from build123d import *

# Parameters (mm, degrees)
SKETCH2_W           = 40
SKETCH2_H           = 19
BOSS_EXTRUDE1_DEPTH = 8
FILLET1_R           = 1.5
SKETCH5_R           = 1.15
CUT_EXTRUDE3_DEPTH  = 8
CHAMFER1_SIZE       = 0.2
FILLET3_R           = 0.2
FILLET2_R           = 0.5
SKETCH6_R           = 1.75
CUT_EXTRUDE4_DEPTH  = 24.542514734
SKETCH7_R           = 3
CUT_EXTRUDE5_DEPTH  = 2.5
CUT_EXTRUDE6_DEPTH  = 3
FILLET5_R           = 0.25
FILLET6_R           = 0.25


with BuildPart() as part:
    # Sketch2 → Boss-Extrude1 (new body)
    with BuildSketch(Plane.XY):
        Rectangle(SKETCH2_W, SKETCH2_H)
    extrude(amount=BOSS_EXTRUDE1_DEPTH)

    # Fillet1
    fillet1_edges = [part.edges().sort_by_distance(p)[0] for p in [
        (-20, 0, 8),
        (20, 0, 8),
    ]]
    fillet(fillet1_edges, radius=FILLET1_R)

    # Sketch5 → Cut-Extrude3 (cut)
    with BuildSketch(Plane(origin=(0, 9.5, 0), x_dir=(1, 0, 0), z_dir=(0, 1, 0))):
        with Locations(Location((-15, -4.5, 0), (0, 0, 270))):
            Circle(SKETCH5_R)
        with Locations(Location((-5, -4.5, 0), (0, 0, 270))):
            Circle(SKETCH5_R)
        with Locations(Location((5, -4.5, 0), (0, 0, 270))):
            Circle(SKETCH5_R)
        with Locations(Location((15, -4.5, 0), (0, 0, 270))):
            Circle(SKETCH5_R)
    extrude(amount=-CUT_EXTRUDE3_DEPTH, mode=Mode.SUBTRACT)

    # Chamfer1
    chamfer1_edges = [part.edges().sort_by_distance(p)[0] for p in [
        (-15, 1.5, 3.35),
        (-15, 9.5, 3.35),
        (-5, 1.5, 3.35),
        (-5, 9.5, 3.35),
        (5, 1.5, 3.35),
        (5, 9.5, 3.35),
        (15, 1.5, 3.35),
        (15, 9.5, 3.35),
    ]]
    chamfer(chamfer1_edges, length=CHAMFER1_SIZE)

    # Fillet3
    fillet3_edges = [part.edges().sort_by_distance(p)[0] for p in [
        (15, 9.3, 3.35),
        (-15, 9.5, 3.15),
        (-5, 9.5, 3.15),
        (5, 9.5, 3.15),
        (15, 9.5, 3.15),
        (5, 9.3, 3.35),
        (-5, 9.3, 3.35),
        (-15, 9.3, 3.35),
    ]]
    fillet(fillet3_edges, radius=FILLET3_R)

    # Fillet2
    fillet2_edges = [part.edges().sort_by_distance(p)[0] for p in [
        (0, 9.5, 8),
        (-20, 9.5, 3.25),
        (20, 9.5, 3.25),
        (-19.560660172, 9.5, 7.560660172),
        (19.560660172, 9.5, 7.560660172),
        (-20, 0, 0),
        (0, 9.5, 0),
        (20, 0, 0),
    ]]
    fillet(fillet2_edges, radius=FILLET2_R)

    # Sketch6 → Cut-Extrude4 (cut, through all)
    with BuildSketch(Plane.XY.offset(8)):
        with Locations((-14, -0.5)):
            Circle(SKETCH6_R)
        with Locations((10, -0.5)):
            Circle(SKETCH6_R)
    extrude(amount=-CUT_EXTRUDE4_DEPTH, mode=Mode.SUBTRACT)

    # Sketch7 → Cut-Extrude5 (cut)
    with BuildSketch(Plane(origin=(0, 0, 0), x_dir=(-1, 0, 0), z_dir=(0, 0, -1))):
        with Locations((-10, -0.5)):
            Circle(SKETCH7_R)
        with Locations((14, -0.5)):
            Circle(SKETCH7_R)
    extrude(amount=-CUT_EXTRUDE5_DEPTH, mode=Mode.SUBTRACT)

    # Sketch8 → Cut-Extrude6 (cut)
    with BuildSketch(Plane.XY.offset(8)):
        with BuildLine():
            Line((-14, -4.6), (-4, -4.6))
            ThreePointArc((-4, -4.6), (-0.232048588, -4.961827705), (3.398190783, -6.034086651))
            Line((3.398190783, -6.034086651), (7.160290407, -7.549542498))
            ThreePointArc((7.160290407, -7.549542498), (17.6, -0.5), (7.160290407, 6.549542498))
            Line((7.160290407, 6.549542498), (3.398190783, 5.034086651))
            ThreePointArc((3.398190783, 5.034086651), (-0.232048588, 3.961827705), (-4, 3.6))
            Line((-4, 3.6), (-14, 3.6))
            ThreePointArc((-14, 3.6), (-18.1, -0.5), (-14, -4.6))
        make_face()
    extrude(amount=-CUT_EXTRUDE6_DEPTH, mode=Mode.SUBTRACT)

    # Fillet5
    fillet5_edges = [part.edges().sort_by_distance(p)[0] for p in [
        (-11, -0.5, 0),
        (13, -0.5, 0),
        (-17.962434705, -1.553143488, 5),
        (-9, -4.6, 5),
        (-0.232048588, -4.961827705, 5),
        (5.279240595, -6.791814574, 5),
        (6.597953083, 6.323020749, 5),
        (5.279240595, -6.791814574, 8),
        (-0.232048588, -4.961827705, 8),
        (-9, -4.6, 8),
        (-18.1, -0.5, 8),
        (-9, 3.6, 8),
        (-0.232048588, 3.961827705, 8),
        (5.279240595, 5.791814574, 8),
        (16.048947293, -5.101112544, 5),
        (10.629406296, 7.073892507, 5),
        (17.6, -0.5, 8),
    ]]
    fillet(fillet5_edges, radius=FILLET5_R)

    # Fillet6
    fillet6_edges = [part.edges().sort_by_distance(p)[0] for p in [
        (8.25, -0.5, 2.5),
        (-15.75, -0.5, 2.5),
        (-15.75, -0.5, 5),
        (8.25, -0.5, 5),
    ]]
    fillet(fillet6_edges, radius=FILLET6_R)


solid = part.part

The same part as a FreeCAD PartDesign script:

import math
import FreeCAD as App
import Part
import Sketcher

V = App.Vector


def edges_at(feature, points):
    """Names of the edges that pass closest to the given points."""
    edges = feature.Shape.Edges
    near = lambda p: min(range(len(edges)), key=lambda i: edges[i].distToShape(Part.Vertex(*p))[0])
    return sorted({f"Edge{near(p) + 1}" for p in points})

doc = App.newDocument("Part")
params = doc.addObject("Spreadsheet::Sheet", "Params")
for row, (alias, value) in enumerate([
    ("sketch1_width", "40 mm"),
    ("sketch1_height", "19 mm"),
    ("pad1_length", "8 mm"),
    ("fillet_radius", "1.5 mm"),
    ("sketch2_diameter", "2.3 mm"),
    ("pocket1_length", "8 mm"),
    ("chamfer_size", "0.2 mm"),
    ("fillet2_radius", "0.2 mm"),
    ("fillet3_radius", "0.5 mm"),
    ("sketch3_diameter", "3.5 mm"),
    ("sketch4_diameter", "6 mm"),
    ("pocket3_length", "2.5 mm"),
    ("sketch5_radius", "19.8 mm"),
    ("sketch5_radius2", "7.6 mm"),
    ("sketch5_radius3", "4.1 mm"),
    ("sketch5_width", "10 mm"),
    ("pocket4_length", "3 mm"),
    ("fillet4_radius", "0.25 mm"),
    ("fillet5_radius", "0.25 mm"),
], start=1):
    params.set(f"A{row}", alias)
    params.set(f"B{row}", "=" + value)
    params.setAlias(f"B{row}", alias)

body = doc.addObject("PartDesign::Body", "Body")

# Sketch on XY plane
sketch1 = body.newObject("Sketcher::SketchObject", "Sketch")
sketch1.AttachmentSupport = (doc.getObject("XY_Plane"), [""])
sketch1.MapMode = "FlatFace"
sketch1.addGeometry(Part.LineSegment(V(-20, 10, 0), V(-20, -10, 0)), False)
sketch1.addGeometry(Part.LineSegment(V(-20, -10, 0), V(20, -10, 0)), False)
sketch1.addGeometry(Part.LineSegment(V(20, -10, 0), V(20, 10, 0)), False)
sketch1.addGeometry(Part.LineSegment(V(20, 10, 0), V(-20, 10, 0)), False)
sketch1.addConstraint(Sketcher.Constraint("Coincident", 0, 2, 1, 1))
sketch1.addConstraint(Sketcher.Constraint("Coincident", 1, 2, 2, 1))
sketch1.addConstraint(Sketcher.Constraint("Coincident", 2, 2, 3, 1))
sketch1.addConstraint(Sketcher.Constraint("Coincident", 3, 2, 0, 1))
sketch1.addConstraint(Sketcher.Constraint("Vertical", 0))
sketch1.addConstraint(Sketcher.Constraint("Horizontal", 1))
sketch1.addConstraint(Sketcher.Constraint("Vertical", 2))
sketch1.addConstraint(Sketcher.Constraint("Horizontal", 3))
sketch1.addConstraint(Sketcher.Constraint("Symmetric", 0, 2, 2, 2, -1, 1))
sketch1.addConstraint(Sketcher.Constraint("DistanceX", 1, 1, 1, 2, 40.0))
sketch1.addConstraint(Sketcher.Constraint("DistanceY", 0, 2, 0, 1, 19.0))
sketch1.setExpression("Constraints[9]", "Params.sketch1_width")
sketch1.setExpression("Constraints[10]", "Params.sketch1_height")
pad1 = body.newObject("PartDesign::Pad", "Pad")
pad1.Profile = sketch1
pad1.setExpression("Length", "Params.pad1_length")
doc.recompute()

fillet = body.newObject("PartDesign::Fillet", "Fillet")
fillet.Base = (pad1, edges_at(pad1, [(-20, 0, 8), (20, 0, 8)]))
fillet.setExpression("Radius", "Params.fillet_radius")

# Sketch on XZ plane
sketch2 = body.newObject("Sketcher::SketchObject", "Sketch001")
sketch2.AttachmentSupport = (doc.getObject("XZ_Plane"), [""])
sketch2.MapMode = "FlatFace"
sketch2.AttachmentOffset = App.Placement(V(0, 0, -9.5), App.Rotation())
sketch2.addGeometry(Part.Circle(V(-15, 4.5, 0), V(0, 0, 1), 1.1), False)
sketch2.addGeometry(Part.Circle(V(-5, 4.5, 0), V(0, 0, 1), 1.1), False)
sketch2.addGeometry(Part.Circle(V(5, 4.5, 0), V(0, 0, 1), 1.1), False)
sketch2.addGeometry(Part.Circle(V(15, 4.5, 0), V(0, 0, 1), 1.1), False)
sketch2.addConstraint(Sketcher.Constraint("Equal", 0, 1))
sketch2.addConstraint(Sketcher.Constraint("Equal", 1, 2))
sketch2.addConstraint(Sketcher.Constraint("Equal", 2, 3))
sketch2.addConstraint(Sketcher.Constraint("Symmetric", 1, 3, 2, 3, -2))
sketch2.addConstraint(Sketcher.Constraint("Symmetric", 0, 3, 3, 3, -2))
sketch2.addConstraint(Sketcher.Constraint("Horizontal", 0, 3, 1, 3))
sketch2.addConstraint(Sketcher.Constraint("Diameter", 0, 2.3))
sketch2.addConstraint(Sketcher.Constraint("DistanceX", 0, 3, -1, 1, 15.0))
sketch2.addConstraint(Sketcher.Constraint("DistanceX", 1, 3, -1, 1, 5.0))
sketch2.addConstraint(Sketcher.Constraint("DistanceY", -1, 1, 0, 3, 4.5))
sketch2.setExpression("Constraints[6]", "Params.sketch2_diameter")
pocket1 = body.newObject("PartDesign::Pocket", "Pocket")
pocket1.Profile = sketch2
pocket1.setExpression("Length", "Params.pocket1_length")
pocket1.Reversed = True
doc.recompute()

chamfer = body.newObject("PartDesign::Chamfer", "Chamfer")
chamfer.Base = (pocket1, edges_at(pocket1, [
    (-15, 1.5, 3.35),
    (-15, 9.5, 3.35),
    (-5, 1.5, 3.35),
    (-5, 9.5, 3.35),
    (5, 1.5, 3.35),
    (5, 9.5, 3.35),
    (15, 1.5, 3.35),
    (15, 9.5, 3.35),
]))
chamfer.setExpression("Size", "Params.chamfer_size")
doc.recompute()

fillet2 = body.newObject("PartDesign::Fillet", "Fillet001")
fillet2.Base = (chamfer, edges_at(chamfer, [
    (15, 9.3, 3.35),
    (-15, 9.5, 3.15),
    (-5, 9.5, 3.15),
    (5, 9.5, 3.15),
    (15, 9.5, 3.15),
    (5, 9.3, 3.35),
    (-5, 9.3, 3.35),
    (-15, 9.3, 3.35),
]))
fillet2.setExpression("Radius", "Params.fillet2_radius")
doc.recompute()

fillet3 = body.newObject("PartDesign::Fillet", "Fillet002")
fillet3.Base = (fillet2, edges_at(fillet2, [
    (0, 9.5, 8),
    (-20, 9.5, 3.25),
    (20, 9.5, 3.25),
    (-19.561, 9.5, 7.561),
    (19.561, 9.5, 7.561),
    (-20, 0, 0),
    (0, 9.5, 0),
    (20, 0, 0),
]))
fillet3.setExpression("Radius", "Params.fillet3_radius")

# Sketch on XY plane
sketch3 = body.newObject("Sketcher::SketchObject", "Sketch002")
sketch3.AttachmentSupport = (doc.getObject("XY_Plane"), [""])
sketch3.MapMode = "FlatFace"
sketch3.AttachmentOffset = App.Placement(V(0, 0, 8), App.Rotation())
sketch3.addGeometry(Part.Circle(V(-14, -0.5, 0), V(0, 0, 1), 1.8), False)
sketch3.addGeometry(Part.Circle(V(10, -0.5, 0), V(0, 0, 1), 1.8), False)
sketch3.addConstraint(Sketcher.Constraint("Equal", 0, 1))
sketch3.addConstraint(Sketcher.Constraint("Horizontal", 0, 3, 1, 3))
sketch3.addConstraint(Sketcher.Constraint("Diameter", 0, 3.5))
sketch3.addConstraint(Sketcher.Constraint("DistanceX", 0, 3, -1, 1, 14.0))
sketch3.addConstraint(Sketcher.Constraint("DistanceX", -1, 1, 1, 3, 10.0))
sketch3.addConstraint(Sketcher.Constraint("DistanceY", 0, 3, -1, 1, 0.5))
sketch3.setExpression("Constraints[2]", "Params.sketch3_diameter")
pocket2 = body.newObject("PartDesign::Pocket", "Pocket001")
pocket2.Profile = sketch3
pocket2.Type = "ThroughAll"

# Sketch on XY plane
sketch4 = body.newObject("Sketcher::SketchObject", "Sketch003")
sketch4.AttachmentSupport = (doc.getObject("XY_Plane"), [""])
sketch4.MapMode = "FlatFace"
sketch4.addGeometry(Part.Circle(V(10, -0.5, 0), V(0, 0, 1), 3), False)
sketch4.addGeometry(Part.Circle(V(-14, -0.5, 0), V(0, 0, 1), 3), False)
sketch4.addConstraint(Sketcher.Constraint("Equal", 0, 1))
sketch4.addConstraint(Sketcher.Constraint("Horizontal", 0, 3, 1, 3))
sketch4.addConstraint(Sketcher.Constraint("Diameter", 0, 6.0))
sketch4.addConstraint(Sketcher.Constraint("DistanceX", -1, 1, 0, 3, 10.0))
sketch4.addConstraint(Sketcher.Constraint("DistanceX", 1, 3, -1, 1, 14.0))
sketch4.addConstraint(Sketcher.Constraint("DistanceY", 0, 3, -1, 1, 0.5))
sketch4.setExpression("Constraints[2]", "Params.sketch4_diameter")
pocket3 = body.newObject("PartDesign::Pocket", "Pocket002")
pocket3.Profile = sketch4
pocket3.setExpression("Length", "Params.pocket3_length")
pocket3.Reversed = True

# Sketch on XY plane
sketch5 = body.newObject("Sketcher::SketchObject", "Sketch004")
sketch5.AttachmentSupport = (doc.getObject("XY_Plane"), [""])
sketch5.MapMode = "FlatFace"
sketch5.AttachmentOffset = App.Placement(V(0, 0, 8), App.Rotation())
sketch5.addGeometry(Part.LineSegment(V(-14, -4.6, 0), V(-4, -4.6, 0)), False)
sketch5.addGeometry(Part.ArcOfCircle(Part.Circle(V(-4, -24.4, 0), V(0, 0, 1), 19.8), math.radians(68), math.radians(90)), False)
sketch5.addGeometry(Part.LineSegment(V(3.4, -6, 0), V(7.2, -7.5, 0)), False)
sketch5.addGeometry(Part.ArcOfCircle(Part.Circle(V(10, -0.5, 0), V(0, 0, 1), 7.6), math.radians(-112), math.radians(112)), False)
sketch5.addGeometry(Part.LineSegment(V(7.2, 6.5, 0), V(3.4, 5, 0)), False)
sketch5.addGeometry(Part.ArcOfCircle(Part.Circle(V(-4, 23.4, 0), V(0, 0, 1), 19.8), math.radians(-90), math.radians(-68)), False)
sketch5.addGeometry(Part.LineSegment(V(-4, 3.6, 0), V(-14, 3.6, 0)), False)
sketch5.addGeometry(Part.ArcOfCircle(Part.Circle(V(-14, -0.5, 0), V(0, 0, 1), 4.1), math.radians(90), math.radians(270)), False)
sketch5.addConstraint(Sketcher.Constraint("Tangent", 0, 2, 1, 2))
sketch5.addConstraint(Sketcher.Constraint("Tangent", 1, 1, 2, 1))
sketch5.addConstraint(Sketcher.Constraint("Tangent", 2, 2, 3, 1))
sketch5.addConstraint(Sketcher.Constraint("Tangent", 3, 2, 4, 1))
sketch5.addConstraint(Sketcher.Constraint("Tangent", 4, 2, 5, 2))
sketch5.addConstraint(Sketcher.Constraint("Tangent", 5, 1, 6, 1))
sketch5.addConstraint(Sketcher.Constraint("Tangent", 6, 2, 7, 1))
sketch5.addConstraint(Sketcher.Constraint("Tangent", 7, 2, 0, 1))
sketch5.addConstraint(Sketcher.Constraint("Horizontal", 0))
sketch5.addConstraint(Sketcher.Constraint("Horizontal", 6))
sketch5.addConstraint(Sketcher.Constraint("Equal", 1, 5))
sketch5.addConstraint(Sketcher.Constraint("Horizontal", 3, 3, 7, 3))
sketch5.addConstraint(Sketcher.Constraint("Vertical", 1, 3, 5, 3))
sketch5.addConstraint(Sketcher.Constraint("Radius", 1, 19.8))
sketch5.addConstraint(Sketcher.Constraint("Radius", 3, 7.6))
sketch5.addConstraint(Sketcher.Constraint("Radius", 7, 4.1))
sketch5.addConstraint(Sketcher.Constraint("DistanceX", 0, 1, 0, 2, 10.0))
sketch5.addConstraint(Sketcher.Constraint("DistanceX", 1, 3, -1, 1, 4.0))
sketch5.addConstraint(Sketcher.Constraint("DistanceX", -1, 1, 3, 3, 10.0))
sketch5.addConstraint(Sketcher.Constraint("DistanceY", 1, 3, -1, 1, 24.4))
sketch5.setExpression("Constraints[13]", "Params.sketch5_radius")
sketch5.setExpression("Constraints[14]", "Params.sketch5_radius2")
sketch5.setExpression("Constraints[15]", "Params.sketch5_radius3")
sketch5.setExpression("Constraints[16]", "Params.sketch5_width")
pocket4 = body.newObject("PartDesign::Pocket", "Pocket003")
pocket4.Profile = sketch5
pocket4.setExpression("Length", "Params.pocket4_length")
doc.recompute()

fillet4 = body.newObject("PartDesign::Fillet", "Fillet003")
fillet4.Base = (pocket4, edges_at(pocket4, [
    (-11, -0.5, 0),
    (13, -0.5, 0),
    (-17.962, -1.553, 5),
    (-9, -4.6, 5),
    (-0.232, -4.962, 5),
    (5.279, -6.792, 5),
    (6.598, 6.323, 5),
    (5.279, -6.792, 8),
    (-0.232, -4.962, 8),
    (-9, -4.6, 8),
    (-18.1, -0.5, 8),
    (-9, 3.6, 8),
    (-0.232, 3.962, 8),
    (5.279, 5.792, 8),
    (16.049, -5.101, 5),
    (10.629, 7.074, 5),
    (17.6, -0.5, 8),
]))
fillet4.setExpression("Radius", "Params.fillet4_radius")
doc.recompute()

fillet5 = body.newObject("PartDesign::Fillet", "Fillet004")
fillet5.Base = (fillet4, edges_at(fillet4, [
    (8.25, -0.5, 2.5),
    (-15.75, -0.5, 2.5),
    (-15.75, -0.5, 5),
    (8.25, -0.5, 5),
]))
fillet5.setExpression("Radius", "Params.fillet5_radius")

doc.recompute()
